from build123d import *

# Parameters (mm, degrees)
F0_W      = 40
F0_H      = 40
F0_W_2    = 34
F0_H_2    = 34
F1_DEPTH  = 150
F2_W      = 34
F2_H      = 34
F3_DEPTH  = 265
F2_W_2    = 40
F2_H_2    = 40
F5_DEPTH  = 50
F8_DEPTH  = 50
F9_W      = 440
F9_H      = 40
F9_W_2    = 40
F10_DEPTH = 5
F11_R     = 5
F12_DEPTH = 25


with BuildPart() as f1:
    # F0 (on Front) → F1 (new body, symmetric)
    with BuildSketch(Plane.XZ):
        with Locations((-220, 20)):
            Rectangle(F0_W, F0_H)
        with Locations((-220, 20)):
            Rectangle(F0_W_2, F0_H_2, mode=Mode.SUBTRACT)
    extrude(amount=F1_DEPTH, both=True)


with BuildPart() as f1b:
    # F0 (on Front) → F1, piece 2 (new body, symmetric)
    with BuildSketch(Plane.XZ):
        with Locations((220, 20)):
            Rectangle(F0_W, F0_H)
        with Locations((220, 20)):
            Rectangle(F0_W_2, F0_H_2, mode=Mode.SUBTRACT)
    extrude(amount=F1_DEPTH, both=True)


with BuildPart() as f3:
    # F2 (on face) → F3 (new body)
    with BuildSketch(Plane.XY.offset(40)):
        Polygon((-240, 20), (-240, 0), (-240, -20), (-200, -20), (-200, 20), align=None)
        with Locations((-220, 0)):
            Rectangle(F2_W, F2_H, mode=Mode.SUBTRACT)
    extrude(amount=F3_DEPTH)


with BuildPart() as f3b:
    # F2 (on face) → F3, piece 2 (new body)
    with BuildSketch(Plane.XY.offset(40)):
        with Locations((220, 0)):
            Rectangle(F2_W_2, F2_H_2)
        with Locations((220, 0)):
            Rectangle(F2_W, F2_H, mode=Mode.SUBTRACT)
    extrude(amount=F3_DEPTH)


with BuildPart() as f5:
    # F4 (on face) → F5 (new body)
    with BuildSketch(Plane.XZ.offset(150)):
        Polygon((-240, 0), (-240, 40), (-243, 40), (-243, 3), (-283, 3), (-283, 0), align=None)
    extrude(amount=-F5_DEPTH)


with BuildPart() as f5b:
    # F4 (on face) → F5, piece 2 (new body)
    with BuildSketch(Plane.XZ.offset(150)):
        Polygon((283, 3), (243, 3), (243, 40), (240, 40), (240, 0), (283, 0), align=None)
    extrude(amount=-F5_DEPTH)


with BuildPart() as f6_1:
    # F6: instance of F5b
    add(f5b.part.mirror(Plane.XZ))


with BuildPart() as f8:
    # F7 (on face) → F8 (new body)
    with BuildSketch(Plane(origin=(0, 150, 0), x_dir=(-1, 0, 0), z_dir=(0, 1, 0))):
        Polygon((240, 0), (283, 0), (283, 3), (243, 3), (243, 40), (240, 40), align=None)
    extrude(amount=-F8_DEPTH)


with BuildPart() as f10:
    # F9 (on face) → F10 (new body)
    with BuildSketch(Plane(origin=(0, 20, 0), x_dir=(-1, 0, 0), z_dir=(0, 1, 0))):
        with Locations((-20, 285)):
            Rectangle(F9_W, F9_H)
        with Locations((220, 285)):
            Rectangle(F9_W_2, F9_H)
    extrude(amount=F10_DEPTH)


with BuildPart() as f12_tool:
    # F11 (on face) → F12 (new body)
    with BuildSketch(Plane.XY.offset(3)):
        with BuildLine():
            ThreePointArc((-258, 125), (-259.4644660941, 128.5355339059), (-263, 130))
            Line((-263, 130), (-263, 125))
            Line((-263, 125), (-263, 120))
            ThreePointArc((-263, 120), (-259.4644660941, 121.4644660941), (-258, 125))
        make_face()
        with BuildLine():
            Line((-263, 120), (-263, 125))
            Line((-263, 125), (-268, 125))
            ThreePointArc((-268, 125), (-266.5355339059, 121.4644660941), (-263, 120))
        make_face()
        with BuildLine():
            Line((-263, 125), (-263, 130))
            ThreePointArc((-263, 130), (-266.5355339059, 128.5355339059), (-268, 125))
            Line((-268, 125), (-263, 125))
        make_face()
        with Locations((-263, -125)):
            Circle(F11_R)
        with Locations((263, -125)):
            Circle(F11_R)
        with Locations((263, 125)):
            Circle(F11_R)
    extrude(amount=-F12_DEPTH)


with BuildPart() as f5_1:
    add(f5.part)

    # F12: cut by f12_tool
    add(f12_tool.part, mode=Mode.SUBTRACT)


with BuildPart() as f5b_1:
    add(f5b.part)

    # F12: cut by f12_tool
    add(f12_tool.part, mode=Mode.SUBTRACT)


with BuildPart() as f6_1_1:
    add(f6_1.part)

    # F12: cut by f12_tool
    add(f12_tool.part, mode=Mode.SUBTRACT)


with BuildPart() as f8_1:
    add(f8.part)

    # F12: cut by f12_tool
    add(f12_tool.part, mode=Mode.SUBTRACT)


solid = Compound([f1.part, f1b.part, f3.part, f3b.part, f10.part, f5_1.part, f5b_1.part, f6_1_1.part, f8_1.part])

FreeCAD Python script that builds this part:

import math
import FreeCAD as App
import Part
import Sketcher

V = App.Vector


def add_polygon(sketch, points):
    """Adds a closed chain of lines whose ends are joined by coincident constraints."""
    first, n = sketch.GeometryCount, len(points)
    for a, b in zip(points, points[1:] + points[:1]):
        sketch.addGeometry(Part.LineSegment(App.Vector(*a, 0), App.Vector(*b, 0)), False)
    for i in range(n):
        sketch.addConstraint(Sketcher.Constraint("Coincident", first + i, 2, first + (i + 1) % n, 1))

doc = App.newDocument("Part")
body = doc.addObject("PartDesign::Body", "Body")

# Sketch on XZ plane
sketch1 = doc.addObject("Sketcher::SketchObject", "Sketch")
body.addObject(sketch1)
sketch1.AttachmentSupport = (doc.XZ_Plane, [""])
sketch1.MapMode = "FlatFace"
add_polygon(sketch1, [(-240, 40), (-240, 0), (-200, 0), (-200, 40)])  # lines 0-3
add_polygon(sketch1, [(-203, 3), (-237, 3), (-237, 37), (-203, 37)])  # lines 4-7
sketch1.addConstraint([
    Sketcher.Constraint("Vertical", 0),
    Sketcher.Constraint("Horizontal", 1),
    Sketcher.Constraint("Vertical", 2),
    Sketcher.Constraint("Horizontal", 3),
    Sketcher.Constraint("Horizontal", 4),
    Sketcher.Constraint("Vertical", 5),
    Sketcher.Constraint("Horizontal", 6),
    Sketcher.Constraint("Vertical", 7),
    Sketcher.Constraint("PointOnObject", 0, 2, -1),
    Sketcher.Constraint("Equal", 3, 0),
    Sketcher.Constraint("Equal", 6, 5),
    Sketcher.Constraint("DistanceX", 1, 1, 1, 2, 40.0),
    Sketcher.Constraint("DistanceX", 4, 2, 4, 1, 34.0),
    Sketcher.Constraint("DistanceX", 0, 2, -1, 1, 240.0),
    Sketcher.Constraint("DistanceX", 4, 2, -1, 1, 237.0),
    Sketcher.Constraint("DistanceY", -1, 1, 4, 2, 3.0),
])
pad1 = doc.addObject("PartDesign::Pad", "Pad")
body.addObject(pad1)
pad1.Profile = sketch1
pad1.Length = 300
pad1.Midplane = True
body2 = doc.addObject("PartDesign::Body", "Body001")

# Sketch on XZ plane
sketch2 = doc.addObject("Sketcher::SketchObject", "Sketch001")
body2.addObject(sketch2)
sketch2.AttachmentSupport = (doc.getObject("XZ_Plane001"), [""])
sketch2.MapMode = "FlatFace"
add_polygon(sketch2, [(200, 40), (200, 0), (240, 0), (240, 40)])  # lines 0-3
add_polygon(sketch2, [(237, 3), (203, 3), (203, 37), (237, 37)])  # lines 4-7
sketch2.addConstraint([
    Sketcher.Constraint("Vertical", 0),
    Sketcher.Constraint("Horizontal", 1),
    Sketcher.Constraint("Vertical", 2),
    Sketcher.Constraint("Horizontal", 3),
    Sketcher.Constraint("Horizontal", 4),
    Sketcher.Constraint("Vertical", 5),
    Sketcher.Constraint("Horizontal", 6),
    Sketcher.Constraint("Vertical", 7),
    Sketcher.Constraint("PointOnObject", 0, 2, -1),
    Sketcher.Constraint("Equal", 3, 0),
    Sketcher.Constraint("Equal", 6, 5),
    Sketcher.Constraint("DistanceX", 1, 1, 1, 2, 40.0),
    Sketcher.Constraint("DistanceX", 4, 2, 4, 1, 34.0),
    Sketcher.Constraint("DistanceX", -1, 1, 0, 2, 200.0),
    Sketcher.Constraint("DistanceX", -1, 1, 4, 2, 203.0),
    Sketcher.Constraint("DistanceY", -1, 1, 4, 2, 3.0),
])
pad2 = doc.addObject("PartDesign::Pad", "Pad001")
body2.addObject(pad2)
pad2.Profile = sketch2
pad2.Length = 300
pad2.Midplane = True
body3 = doc.addObject("PartDesign::Body", "Body002")

# Sketch on XY plane
sketch3 = doc.addObject("Sketcher::SketchObject", "Sketch002")
body3.addObject(sketch3)
sketch3.AttachmentSupport = (doc.getObject("XY_Plane002"), [""])
sketch3.MapMode = "FlatFace"
sketch3.AttachmentOffset = App.Placement(V(0, 0, 40), App.Rotation())
add_polygon(sketch3, [(-240, 20), (-240, -20), (-200, -20), (-200, 20)])  # lines 0-3
add_polygon(sketch3, [(-203, -17), (-237, -17), (-237, 17), (-203, 17)])  # lines 4-7
sketch3.addConstraint([
    Sketcher.Constraint("Vertical", 0),
    Sketcher.Constraint("Horizontal", 1),
    Sketcher.Constraint("Vertical", 2),
    Sketcher.Constraint("Horizontal", 3),
    Sketcher.Constraint("Horizontal", 4),
    Sketcher.Constraint("Vertical", 5),
    Sketcher.Constraint("Horizontal", 6),
    Sketcher.Constraint("Vertical", 7),
    Sketcher.Constraint("Equal", 3, 0),
    Sketcher.Constraint("Equal", 6, 5),
    Sketcher.Constraint("DistanceX", 1, 1, 1, 2, 40.0),
    Sketcher.Constraint("DistanceX", 4, 2, 4, 1, 34.0),
    Sketcher.Constraint("DistanceX", 0, 2, -1, 1, 240.0),
    Sketcher.Constraint("DistanceY", 0, 2, -1, 1, 20.0),
    Sketcher.Constraint("DistanceX", 4, 2, -1, 1, 237.0),
    Sketcher.Constraint("DistanceY", 4, 2, -1, 1, 17.0),
])
pad3 = doc.addObject("PartDesign::Pad", "Pad002")
body3.addObject(pad3)
pad3.Profile = sketch3
pad3.Length = 265
body4 = doc.addObject("PartDesign::Body", "Body003")

# Sketch on XY plane
sketch4 = doc.addObject("Sketcher::SketchObject", "Sketch003")
body4.addObject(sketch4)
sketch4.AttachmentSupport = (doc.getObject("XY_Plane003"), [""])
sketch4.MapMode = "FlatFace"
sketch4.AttachmentOffset = App.Placement(V(0, 0, 40), App.Rotation())
add_polygon(sketch4, [(200, 20), (200, -20), (240, -20), (240, 20)])  # lines 0-3
add_polygon(sketch4, [(237, -17), (203, -17), (203, 17), (237, 17)])  # lines 4-7
sketch4.addConstraint([
    Sketcher.Constraint("Vertical", 0),
    Sketcher.Constraint("Horizontal", 1),
    Sketcher.Constraint("Vertical", 2),
    Sketcher.Constraint("Horizontal", 3),
    Sketcher.Constraint("Horizontal", 4),
    Sketcher.Constraint("Vertical", 5),
    Sketcher.Constraint("Horizontal", 6),
    Sketcher.Constraint("Vertical", 7),
    Sketcher.Constraint("Equal", 3, 0),
    Sketcher.Constraint("Equal", 6, 5),
    Sketcher.Constraint("DistanceX", 1, 1, 1, 2, 40.0),
    Sketcher.Constraint("DistanceX", 4, 2, 4, 1, 34.0),
    Sketcher.Constraint("DistanceX", -1, 1, 0, 2, 200.0),
    Sketcher.Constraint("DistanceY", 0, 2, -1, 1, 20.0),
    Sketcher.Constraint("DistanceX", -1, 1, 4, 2, 203.0),
    Sketcher.Constraint("DistanceY", 4, 2, -1, 1, 17.0),
])
pad4 = doc.addObject("PartDesign::Pad", "Pad003")
body4.addObject(pad4)
pad4.Profile = sketch4
pad4.Length = 265
body5 = doc.addObject("PartDesign::Body", "Body004")

# Sketch on XZ plane
sketch5 = doc.addObject("Sketcher::SketchObject", "Sketch004")
body5.addObject(sketch5)
sketch5.AttachmentSupport = (doc.getObject("XZ_Plane004"), [""])
sketch5.MapMode = "FlatFace"
sketch5.AttachmentOffset = App.Placement(V(0, 0, 150), App.Rotation())
add_polygon(sketch5, [(-240, 0), (-240, 40), (-243, 40), (-243, 3), (-283, 3), (-283, 0)])  # lines 0-5
sketch5.addConstraint([
    Sketcher.Constraint("Vertical", 0),
    Sketcher.Constraint("Horizontal", 1),
    Sketcher.Constraint("Vertical", 2),
    Sketcher.Constraint("Horizontal", 3),
    Sketcher.Constraint("Vertical", 4),
    Sketcher.Constraint("Horizontal", 5),
    Sketcher.Constraint("PointOnObject", 4, 2, -1),
    Sketcher.Constraint("Equal", 3, 0),
    Sketcher.Constraint("Equal", 1, 4),
    Sketcher.Constraint("DistanceX", 1, 2, 1, 1, 3.0),
    Sketcher.Constraint("DistanceX", 3, 2, 3, 1, 40.0),
    Sketcher.Constraint("DistanceX", 0, 2, -1, 1, 240.0),
])
pad5 = doc.addObject("PartDesign::Pad", "Pad004")
body5.addObject(pad5)
pad5.Profile = sketch5
pad5.Length = 50
pad5.Reversed = True
body6 = doc.addObject("PartDesign::Body", "Body005")

# Sketch on XZ plane
sketch6 = doc.addObject("Sketcher::SketchObject", "Sketch005")
body6.addObject(sketch6)
sketch6.AttachmentSupport = (doc.getObject("XZ_Plane005"), [""])
sketch6.MapMode = "FlatFace"
sketch6.AttachmentOffset = App.Placement(V(0, 0, 150), App.Rotation())
add_polygon(sketch6, [(283, 3), (243, 3), (243, 40), (240, 40), (240, 0), (283, 0)])  # lines 0-5
sketch6.addConstraint([
    Sketcher.Constraint("Horizontal", 0),
    Sketcher.Constraint("Vertical", 1),
    Sketcher.Constraint("Horizontal", 2),
    Sketcher.Constraint("Vertical", 3),
    Sketcher.Constraint("Horizontal", 4),
    Sketcher.Constraint("Vertical", 5),
    Sketcher.Constraint("PointOnObject", 3, 2, -1),
    Sketcher.Constraint("Equal", 0, 3),
    Sketcher.Constraint("Equal", 2, 5),
    Sketcher.Constraint("DistanceX", 0, 2, 0, 1, 40.0),
    Sketcher.Constraint("DistanceX", 2, 2, 2, 1, 3.0),
    Sketcher.Constraint("DistanceX", -1, 1, 0, 2, 243.0),
])
pad6 = doc.addObject("PartDesign::Pad", "Pad005")
body6.addObject(pad6)
pad6.Profile = sketch6
pad6.Length = 50
pad6.Reversed = True
body7 = doc.addObject("PartDesign::Body", "Body006")
doc.recompute()

mirroring = doc.addObject("Part::Mirroring", "Mirroring")
mirroring.Source = body6
mirroring.Base = V(0, 0, 0)
mirroring.Normal = V(0, -1, 0)
body7.BaseFeature = mirroring
doc.recompute()
body8 = doc.addObject("PartDesign::Body", "Body007")

# Sketch on XZ plane
sketch7 = doc.addObject("Sketcher::SketchObject", "Sketch006")
body8.addObject(sketch7)
sketch7.AttachmentSupport = (doc.getObject("XZ_Plane007"), [""])
sketch7.MapMode = "FlatFace"
sketch7.AttachmentOffset = App.Placement(V(0, 0, -150), App.Rotation())
add_polygon(sketch7, [(-240, 0), (-283, 0), (-283, 3), (-243, 3), (-243, 40), (-240, 40)])  # lines 0-5
sketch7.addConstraint([
    Sketcher.Constraint("Horizontal", 0),
    Sketcher.Constraint("Vertical", 1),
    Sketcher.Constraint("Horizontal", 2),
    Sketcher.Constraint("Vertical", 3),
    Sketcher.Constraint("Horizontal", 4),
    Sketcher.Constraint("Vertical", 5),
    Sketcher.Constraint("PointOnObject", 0, 2, -1),
    Sketcher.Constraint("Equal", 4, 1),
    Sketcher.Constraint("Equal", 2, 5),
    Sketcher.Constraint("DistanceX", 0, 2, 0, 1, 43.0),
    Sketcher.Constraint("DistanceX", 2, 1, 2, 2, 40.0),
    Sketcher.Constraint("DistanceX", 0, 2, -1, 1, 283.0),
])
pad7 = doc.addObject("PartDesign::Pad", "Pad006")
body8.addObject(pad7)
pad7.Profile = sketch7
pad7.Length = 50
body9 = doc.addObject("PartDesign::Body", "Body008")

# Sketch on XZ plane
sketch8 = doc.addObject("Sketcher::SketchObject", "Sketch007")
body9.addObject(sketch8)
sketch8.AttachmentSupport = (doc.getObject("XZ_Plane008"), [""])
sketch8.MapMode = "FlatFace"
sketch8.AttachmentOffset = App.Placement(V(0, 0, -20), App.Rotation())
add_polygon(sketch8, [(240, 305), (240, 265), (-240, 265), (-240, 305)])  # lines 0-3
sketch8.addConstraint([
    Sketcher.Constraint("Vertical", 0),
    Sketcher.Constraint("Horizontal", 1),
    Sketcher.Constraint("Vertical", 2),
    Sketcher.Constraint("Horizontal", 3),
    Sketcher.Constraint("DistanceX", 1, 2, 1, 1, 480.0),
    Sketcher.Constraint("DistanceY", 0, 2, 0, 1, 40.0),
    Sketcher.Constraint("DistanceX", -1, 1, 0, 2, 240.0),
    Sketcher.Constraint("DistanceY", -1, 1, 0, 2, 265.0),
])
pad8 = doc.addObject("PartDesign::Pad", "Pad007")
body9.addObject(pad8)
pad8.Profile = sketch8
pad8.Length = 5
pad8.Reversed = True
body10 = doc.addObject("PartDesign::Body", "Body009")
body10.AllowCompound = True

# Sketch on XY plane
sketch9 = doc.addObject("Sketcher::SketchObject", "Sketch008")
body10.addObject(sketch9)
sketch9.AttachmentSupport = (doc.getObject("XY_Plane009"), [""])
sketch9.MapMode = "FlatFace"
sketch9.AttachmentOffset = App.Placement(V(0, 0, 3), App.Rotation())
sketch9.addGeometry([
    Part.ArcOfCircle(Part.Circle(V(-263, 125, 0), V(0, 0, 1), 5), math.radians(0), math.radians(90)),  # 0
    Part.ArcOfCircle(Part.Circle(V(-263, 125, 0), V(0, 0, 1), 5), math.radians(90), math.radians(180)),  # 1
    Part.ArcOfCircle(Part.Circle(V(-263, 125, 0), V(0, 0, 1), 5), math.radians(180), math.radians(270)),  # 2
    Part.ArcOfCircle(Part.Circle(V(-263, 125, 0), V(0, 0, 1), 5), math.radians(-90), math.radians(0)),  # 3
    Part.Circle(V(-263, -125, 0), V(0, 0, 1), 5),  # 4
    Part.Circle(V(263, -125, 0), V(0, 0, 1), 5),  # 5
    Part.Circle(V(263, 125, 0), V(0, 0, 1), 5),  # 6
], False)
sketch9.addConstraint([
    Sketcher.Constraint("Tangent", 0, 2, 1, 1),
    Sketcher.Constraint("Tangent", 1, 2, 2, 1),
    Sketcher.Constraint("Tangent", 2, 2, 3, 1),
    Sketcher.Constraint("Tangent", 3, 2, 0, 1),
    Sketcher.Constraint("Equal", 0, 1),
    Sketcher.Constraint("Equal", 3, 4),
    Sketcher.Constraint("Equal", 4, 5),
    Sketcher.Constraint("Equal", 5, 6),
    Sketcher.Constraint("Symmetric", 0, 3, 5, 3, -1, 1),
    Sketcher.Constraint("Symmetric", 4, 3, 6, 3, -1, 1),
    Sketcher.Constraint("Symmetric", 4, 3, 5, 3, -2),
    Sketcher.Constraint("Horizontal", 6, 3, 1, 2),
    Sketcher.Constraint("Horizontal", 1, 2, 3, 2),
    Sketcher.Constraint("Vertical", 4, 3, 0, 2),
    Sketcher.Constraint("Vertical", 0, 2, 2, 2),
    Sketcher.Constraint("Diameter", 4, 10.0),
    Sketcher.Constraint("DistanceX", 0, 3, -1, 1, 263.0),
    Sketcher.Constraint("DistanceY", -1, 1, 0, 3, 125.0),
])
pad9 = doc.addObject("PartDesign::Pad", "Pad008")
body10.addObject(pad9)
pad9.Profile = sketch9
pad9.Length = 25
pad9.Reversed = True
doc.recompute()

body11 = doc.addObject("PartDesign::Body", "Body010")
body11.BaseFeature = body10
boolean = doc.addObject("PartDesign::Boolean", "Boolean")
body5.addObject(boolean)
boolean.Type = "Cut"
boolean.addObjects([body11])
doc.recompute()

body12 = doc.addObject("PartDesign::Body", "Body011")
body12.BaseFeature = body10
boolean2 = doc.addObject("PartDesign::Boolean", "Boolean001")
body6.addObject(boolean2)
boolean2.Type = "Cut"
boolean2.addObjects([body12])
doc.recompute()

body13 = doc.addObject("PartDesign::Body", "Body012")
body13.BaseFeature = body10
boolean3 = doc.addObject("PartDesign::Boolean", "Boolean002")
body7.addObject(boolean3)
boolean3.Type = "Cut"
boolean3.addObjects([body13])
doc.recompute()

boolean4 = doc.addObject("PartDesign::Boolean", "Boolean003")
body8.addObject(boolean4)
boolean4.Type = "Cut"
boolean4.addObjects([body10])
mirroring.Visibility = False

doc.recompute()
